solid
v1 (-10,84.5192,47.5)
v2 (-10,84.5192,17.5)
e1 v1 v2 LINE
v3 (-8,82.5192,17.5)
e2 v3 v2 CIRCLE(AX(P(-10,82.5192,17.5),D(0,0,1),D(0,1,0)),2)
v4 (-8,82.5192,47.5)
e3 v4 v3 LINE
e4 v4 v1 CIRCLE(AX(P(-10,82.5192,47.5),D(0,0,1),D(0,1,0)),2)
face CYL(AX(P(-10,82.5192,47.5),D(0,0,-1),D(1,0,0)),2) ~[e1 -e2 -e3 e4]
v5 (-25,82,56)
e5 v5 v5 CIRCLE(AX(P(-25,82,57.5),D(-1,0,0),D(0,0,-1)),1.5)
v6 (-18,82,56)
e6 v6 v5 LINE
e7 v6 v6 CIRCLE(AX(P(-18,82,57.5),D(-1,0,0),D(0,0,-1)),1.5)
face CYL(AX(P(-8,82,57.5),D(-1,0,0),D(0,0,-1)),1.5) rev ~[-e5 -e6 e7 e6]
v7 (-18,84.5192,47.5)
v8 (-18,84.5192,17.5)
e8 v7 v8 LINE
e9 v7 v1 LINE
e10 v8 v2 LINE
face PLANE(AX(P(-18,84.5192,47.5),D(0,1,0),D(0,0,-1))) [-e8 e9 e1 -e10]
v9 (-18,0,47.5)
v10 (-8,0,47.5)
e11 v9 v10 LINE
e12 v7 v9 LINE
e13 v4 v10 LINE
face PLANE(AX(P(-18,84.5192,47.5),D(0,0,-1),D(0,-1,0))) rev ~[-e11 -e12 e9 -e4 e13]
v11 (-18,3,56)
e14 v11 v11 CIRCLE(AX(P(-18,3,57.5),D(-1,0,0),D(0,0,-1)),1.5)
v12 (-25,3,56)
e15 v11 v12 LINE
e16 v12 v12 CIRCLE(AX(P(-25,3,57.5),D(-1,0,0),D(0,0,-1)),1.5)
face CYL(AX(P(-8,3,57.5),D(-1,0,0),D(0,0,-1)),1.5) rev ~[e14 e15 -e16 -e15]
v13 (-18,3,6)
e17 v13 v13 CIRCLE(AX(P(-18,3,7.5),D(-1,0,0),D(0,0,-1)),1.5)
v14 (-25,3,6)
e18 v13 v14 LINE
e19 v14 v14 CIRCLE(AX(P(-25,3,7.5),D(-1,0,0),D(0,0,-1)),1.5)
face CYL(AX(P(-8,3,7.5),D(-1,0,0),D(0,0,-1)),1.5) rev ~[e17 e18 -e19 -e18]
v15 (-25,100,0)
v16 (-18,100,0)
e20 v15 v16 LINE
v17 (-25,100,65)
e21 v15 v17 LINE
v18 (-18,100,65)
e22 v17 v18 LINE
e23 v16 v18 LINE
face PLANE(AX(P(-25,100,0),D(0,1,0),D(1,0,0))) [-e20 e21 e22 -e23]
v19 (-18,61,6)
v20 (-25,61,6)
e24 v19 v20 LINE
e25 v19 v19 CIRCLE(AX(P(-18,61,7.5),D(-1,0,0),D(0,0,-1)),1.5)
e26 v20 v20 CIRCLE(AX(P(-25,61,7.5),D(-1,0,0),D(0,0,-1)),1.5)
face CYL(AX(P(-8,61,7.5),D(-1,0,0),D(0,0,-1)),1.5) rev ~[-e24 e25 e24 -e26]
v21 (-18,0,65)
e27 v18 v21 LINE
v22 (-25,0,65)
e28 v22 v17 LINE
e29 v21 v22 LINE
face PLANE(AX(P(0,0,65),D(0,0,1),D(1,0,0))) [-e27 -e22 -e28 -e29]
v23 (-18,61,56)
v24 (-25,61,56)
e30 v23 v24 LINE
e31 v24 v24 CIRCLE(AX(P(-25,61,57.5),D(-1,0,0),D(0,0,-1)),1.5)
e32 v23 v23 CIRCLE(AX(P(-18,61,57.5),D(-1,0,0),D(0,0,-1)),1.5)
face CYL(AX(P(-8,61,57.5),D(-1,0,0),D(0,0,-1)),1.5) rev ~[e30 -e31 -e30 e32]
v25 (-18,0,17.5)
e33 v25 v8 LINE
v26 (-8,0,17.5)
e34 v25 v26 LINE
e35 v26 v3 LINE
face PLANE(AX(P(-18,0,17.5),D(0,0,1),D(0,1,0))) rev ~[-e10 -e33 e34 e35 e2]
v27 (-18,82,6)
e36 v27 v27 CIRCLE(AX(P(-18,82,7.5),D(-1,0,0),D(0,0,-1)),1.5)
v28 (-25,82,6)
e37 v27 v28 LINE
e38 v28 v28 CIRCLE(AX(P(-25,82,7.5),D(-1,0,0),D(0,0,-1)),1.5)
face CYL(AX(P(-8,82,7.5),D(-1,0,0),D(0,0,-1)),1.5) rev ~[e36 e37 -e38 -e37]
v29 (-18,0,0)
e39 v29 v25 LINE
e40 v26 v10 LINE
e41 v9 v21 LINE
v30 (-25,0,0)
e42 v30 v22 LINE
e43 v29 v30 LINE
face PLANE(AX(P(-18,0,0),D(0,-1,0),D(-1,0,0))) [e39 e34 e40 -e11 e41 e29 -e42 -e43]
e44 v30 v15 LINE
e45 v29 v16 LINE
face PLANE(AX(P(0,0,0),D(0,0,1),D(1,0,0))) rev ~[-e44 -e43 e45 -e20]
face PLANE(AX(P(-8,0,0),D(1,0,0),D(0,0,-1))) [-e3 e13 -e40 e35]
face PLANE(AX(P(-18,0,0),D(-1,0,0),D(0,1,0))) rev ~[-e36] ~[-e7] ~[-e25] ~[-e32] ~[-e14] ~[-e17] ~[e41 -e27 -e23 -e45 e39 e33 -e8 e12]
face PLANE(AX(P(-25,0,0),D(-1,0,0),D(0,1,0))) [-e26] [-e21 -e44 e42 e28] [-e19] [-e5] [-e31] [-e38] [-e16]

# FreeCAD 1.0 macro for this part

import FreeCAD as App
import Part
import Sketcher
from FreeCAD import Vector


def edges_at(feature, points):
    """Names of the edges that pass closest to the given points."""
    edges = feature.Shape.Edges
    near = lambda p: min(range(len(edges)), key=lambda i: edges[i].distToShape(Part.Vertex(*p))[0])
    return sorted({f"Edge{near(p) + 1}" for p in points})


def add_polygon(sketch, points):
    """Adds a closed chain of lines whose ends are joined by coincident constraints."""
    first, n = sketch.GeometryCount, len(points)
    for a, b in zip(points, points[1:] + points[:1]):
        sketch.addGeometry(Part.LineSegment(App.Vector(*a, 0), App.Vector(*b, 0)), False)
    for i in range(n):
        sketch.addConstraint(Sketcher.Constraint("Coincident", first + i, 2, first + (i + 1) % n, 1))

doc = App.newDocument("Part")
body = doc.addObject("PartDesign::Body", "Body")

# Sketch on XY plane
sketch1 = doc.addObject("Sketcher::SketchObject", "Sketch")
body.addObject(sketch1)
sketch1.AttachmentSupport = (doc.XY_Plane, [""])
sketch1.MapMode = "FlatFace"
add_polygon(sketch1, [(-25, 0), (-18, 0), (-18, 100), (-25, 100)])  # lines 0-3
sketch1.addConstraint(Sketcher.Constraint("Horizontal", 0))
sketch1.addConstraint(Sketcher.Constraint("Vertical", 1))
sketch1.addConstraint(Sketcher.Constraint("Horizontal", 2))
sketch1.addConstraint(Sketcher.Constraint("Vertical", 3))
sketch1.addConstraint(Sketcher.Constraint("PointOnObject", 0, 2, -1))
sketch1.addConstraint(Sketcher.Constraint("DistanceX", 0, 1, 0, 2, 7.0))
sketch1.addConstraint(Sketcher.Constraint("DistanceY", 1, 1, 1, 2, 100.0))
sketch1.addConstraint(Sketcher.Constraint("DistanceX", 2, 2, -1, 1, 25.0))
pad1 = doc.addObject("PartDesign::Pad", "Pad")
body.addObject(pad1)
pad1.Profile = sketch1
pad1.Length = 65

# Sketch on YZ plane
sketch2 = doc.addObject("Sketcher::SketchObject", "Sketch001")
body.addObject(sketch2)
sketch2.AttachmentSupport = (doc.YZ_Plane, [""])
sketch2.MapMode = "FlatFace"
sketch2.AttachmentOffset = App.Placement(Vector(0, 0, -18), App.Rotation())
add_polygon(sketch2, [(0, 47.5), (0, 17.5), (84.5192, 17.5), (84.5192, 47.5)])  # lines 0-3
sketch2.addConstraint(Sketcher.Constraint("Vertical", 0))
sketch2.addConstraint(Sketcher.Constraint("Horizontal", 1))
sketch2.addConstraint(Sketcher.Constraint("Vertical", 2))
sketch2.addConstraint(Sketcher.Constraint("Horizontal", 3))
sketch2.addConstraint(Sketcher.Constraint("PointOnObject", 0, 2, -2))
sketch2.addConstraint(Sketcher.Constraint("DistanceY", 0, 2, 0, 1, 30.0))
sketch2.addConstraint(Sketcher.Constraint("DistanceY", -1, 1, 0, 2, 17.5))
sketch2.addConstraint(Sketcher.Constraint("DistanceX", 1, 1, 1, 2, 84.5192))
pad2 = doc.addObject("PartDesign::Pad", "Pad001")
body.addObject(pad2)
pad2.Profile = sketch2
pad2.Length = 10

# Sketch on YZ plane
sketch3 = doc.addObject("Sketcher::SketchObject", "Sketch002")
body.addObject(sketch3)
sketch3.AttachmentSupport = (doc.YZ_Plane, [""])
sketch3.MapMode = "FlatFace"
sketch3.AttachmentOffset = App.Placement(Vector(0, 0, -8), App.Rotation())
sketch3.addGeometry(Part.Circle(Vector(61, 7.5, 0), Vector(0, 0, 1), 1.5), False)
sketch3.addConstraint(Sketcher.Constraint("Diameter", 0, 3.0))
sketch3.addConstraint(Sketcher.Constraint("DistanceX", -1, 1, 0, 3, 61.0))
sketch3.addConstraint(Sketcher.Constraint("DistanceY", -1, 1, 0, 3, 7.5))
doc.recompute()
hole = doc.addObject("PartDesign::Hole", "Hole")
body.addObject(hole)
hole.Profile = sketch3
hole.ThreadType = "None"
hole.Diameter = 3
hole.DepthType = "Dimension"
hole.Depth = 40
hole.DrillPoint = "Flat"

# Sketch on YZ plane
sketch4 = doc.addObject("Sketcher::SketchObject", "Sketch003")
body.addObject(sketch4)
sketch4.AttachmentSupport = (doc.YZ_Plane, [""])
sketch4.MapMode = "FlatFace"
sketch4.AttachmentOffset = App.Placement(Vector(0, 0, -8), App.Rotation())
sketch4.addGeometry(Part.Circle(Vector(82, 7.5, 0), Vector(0, 0, 1), 1.5), False)
sketch4.addConstraint(Sketcher.Constraint("Diameter", 0, 3.0))
sketch4.addConstraint(Sketcher.Constraint("DistanceX", -1, 1, 0, 3, 82.0))
sketch4.addConstraint(Sketcher.Constraint("DistanceY", -1, 1, 0, 3, 7.5))
doc.recompute()
hole2 = doc.addObject("PartDesign::Hole", "Hole001")
body.addObject(hole2)
hole2.Profile = sketch4
hole2.ThreadType = "None"
hole2.Diameter = 3
hole2.DepthType = "Dimension"
hole2.Depth = 40
hole2.DrillPoint = "Flat"

# Sketch on YZ plane
sketch5 = doc.addObject("Sketcher::SketchObject", "Sketch004")
body.addObject(sketch5)
sketch5.AttachmentSupport = (doc.YZ_Plane, [""])
sketch5.MapMode = "FlatFace"
sketch5.AttachmentOffset = App.Placement(Vector(0, 0, -8), App.Rotation())
sketch5.addGeometry(Part.Circle(Vector(3, 7.5, 0), Vector(0, 0, 1), 1.5), False)
sketch5.addConstraint(Sketcher.Constraint("Diameter", 0, 3.0))
sketch5.addConstraint(Sketcher.Constraint("DistanceX", -1, 1, 0, 3, 3.0))
sketch5.addConstraint(Sketcher.Constraint("DistanceY", -1, 1, 0, 3, 7.5))
doc.recompute()
hole3 = doc.addObject("PartDesign::Hole", "Hole002")
body.addObject(hole3)
hole3.Profile = sketch5
hole3.ThreadType = "None"
hole3.Diameter = 3
hole3.DepthType = "Dimension"
hole3.Depth = 40
hole3.DrillPoint = "Flat"

# Sketch on YZ plane
sketch6 = doc.addObject("Sketcher::SketchObject", "Sketch005")
body.addObject(sketch6)
sketch6.AttachmentSupport = (doc.YZ_Plane, [""])
sketch6.MapMode = "FlatFace"
sketch6.AttachmentOffset = App.Placement(Vector(0, 0, -8), App.Rotation())
sketch6.addGeometry(Part.Circle(Vector(3, 57.5, 0), Vector(0, 0, 1), 1.5), False)
sketch6.addConstraint(Sketcher.Constraint("Diameter", 0, 3.0))
sketch6.addConstraint(Sketcher.Constraint("DistanceX", -1, 1, 0, 3, 3.0))
sketch6.addConstraint(Sketcher.Constraint("DistanceY", -1, 1, 0, 3, 57.5))
doc.recompute()
hole4 = doc.addObject("PartDesign::Hole", "Hole003")
body.addObject(hole4)
hole4.Profile = sketch6
hole4.ThreadType = "None"
hole4.Diameter = 3
hole4.DepthType = "Dimension"
hole4.Depth = 40
hole4.DrillPoint = "Flat"

# Sketch on YZ plane
sketch7 = doc.addObject("Sketcher::SketchObject", "Sketch006")
body.addObject(sketch7)
sketch7.AttachmentSupport = (doc.YZ_Plane, [""])
sketch7.MapMode = "FlatFace"
sketch7.AttachmentOffset = App.Placement(Vector(0, 0, -8), App.Rotation())
sketch7.addGeometry(Part.Circle(Vector(61, 57.5, 0), Vector(0, 0, 1), 1.5), False)
sketch7.addConstraint(Sketcher.Constraint("Diameter", 0, 3.0))
sketch7.addConstraint(Sketcher.Constraint("DistanceX", -1, 1, 0, 3, 61.0))
sketch7.addConstraint(Sketcher.Constraint("DistanceY", -1, 1, 0, 3, 57.5))
doc.recompute()
hole5 = doc.addObject("PartDesign::Hole", "Hole004")
body.addObject(hole5)
hole5.Profile = sketch7
hole5.ThreadType = "None"
hole5.Diameter = 3
hole5.DepthType = "Dimension"
hole5.Depth = 40
hole5.DrillPoint = "Flat"

# Sketch on YZ plane
sketch8 = doc.addObject("Sketcher::SketchObject", "Sketch007")
body.addObject(sketch8)
sketch8.AttachmentSupport = (doc.YZ_Plane, [""])
sketch8.MapMode = "FlatFace"
sketch8.AttachmentOffset = App.Placement(Vector(0, 0, -8), App.Rotation())
sketch8.addGeometry(Part.Circle(Vector(82, 57.5, 0), Vector(0, 0, 1), 1.5), False)
sketch8.addConstraint(Sketcher.Constraint("Diameter", 0, 3.0))
sketch8.addConstraint(Sketcher.Constraint("DistanceX", -1, 1, 0, 3, 82.0))
sketch8.addConstraint(Sketcher.Constraint("DistanceY", -1, 1, 0, 3, 57.5))
doc.recompute()
hole6 = doc.addObject("PartDesign::Hole", "Hole005")
body.addObject(hole6)
hole6.Profile = sketch8
hole6.ThreadType = "None"
hole6.Diameter = 3
hole6.DepthType = "Dimension"
hole6.Depth = 40
hole6.DrillPoint = "Flat"
doc.recompute()

fillet = doc.addObject("PartDesign::Fillet", "Fillet")
body.addObject(fillet)
fillet.Base = (hole6, edges_at(hole6, [(-8, 84.519, 32.5)]))
fillet.Radius = 2

doc.recompute()
